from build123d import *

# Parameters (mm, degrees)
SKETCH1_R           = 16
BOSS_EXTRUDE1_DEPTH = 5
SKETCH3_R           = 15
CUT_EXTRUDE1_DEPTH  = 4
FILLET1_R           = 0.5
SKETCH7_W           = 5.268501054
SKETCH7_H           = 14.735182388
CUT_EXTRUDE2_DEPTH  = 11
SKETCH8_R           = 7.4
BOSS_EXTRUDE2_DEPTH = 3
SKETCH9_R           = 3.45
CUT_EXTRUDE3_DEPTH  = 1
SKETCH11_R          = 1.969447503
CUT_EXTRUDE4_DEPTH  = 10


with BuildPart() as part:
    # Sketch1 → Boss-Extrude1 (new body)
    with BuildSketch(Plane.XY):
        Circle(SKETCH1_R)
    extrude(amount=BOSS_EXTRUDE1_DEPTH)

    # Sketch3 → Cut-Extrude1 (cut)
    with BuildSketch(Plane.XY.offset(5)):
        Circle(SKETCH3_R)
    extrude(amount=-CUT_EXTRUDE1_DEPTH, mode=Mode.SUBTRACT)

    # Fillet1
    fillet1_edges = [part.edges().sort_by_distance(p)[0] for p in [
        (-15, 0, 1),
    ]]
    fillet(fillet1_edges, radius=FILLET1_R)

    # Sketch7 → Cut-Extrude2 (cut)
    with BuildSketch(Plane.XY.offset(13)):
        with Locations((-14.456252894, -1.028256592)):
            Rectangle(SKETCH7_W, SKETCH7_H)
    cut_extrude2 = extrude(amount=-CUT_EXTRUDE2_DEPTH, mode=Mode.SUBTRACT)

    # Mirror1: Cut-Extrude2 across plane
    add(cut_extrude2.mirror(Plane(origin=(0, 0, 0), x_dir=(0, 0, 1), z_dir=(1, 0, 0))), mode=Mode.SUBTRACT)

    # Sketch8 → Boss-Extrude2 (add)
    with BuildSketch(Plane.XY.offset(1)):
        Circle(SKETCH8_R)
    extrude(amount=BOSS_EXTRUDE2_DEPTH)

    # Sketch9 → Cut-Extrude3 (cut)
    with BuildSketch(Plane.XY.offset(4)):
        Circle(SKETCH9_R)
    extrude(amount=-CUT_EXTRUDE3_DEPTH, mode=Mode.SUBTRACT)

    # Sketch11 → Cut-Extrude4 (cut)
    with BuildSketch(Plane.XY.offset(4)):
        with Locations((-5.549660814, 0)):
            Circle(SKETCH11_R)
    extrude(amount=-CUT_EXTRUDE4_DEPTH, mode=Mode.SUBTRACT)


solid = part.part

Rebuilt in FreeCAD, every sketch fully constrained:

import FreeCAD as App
import Part
import Sketcher

V = App.Vector


def edges_at(feature, points):
    """Names of the edges that pass closest to the given points."""
    edges = feature.Shape.Edges
    near = lambda p: min(range(len(edges)), key=lambda i: edges[i].distToShape(Part.Vertex(*p))[0])
    return sorted({f"Edge{near(p) + 1}" for p in points})

doc = App.newDocument("Part")
body = doc.addObject("PartDesign::Body", "Body")

# Sketch on XY plane
sketch1 = body.newObject("Sketcher::SketchObject", "Sketch")
sketch1.AttachmentSupport = (doc.getObject("XY_Plane"), [""])
sketch1.MapMode = "FlatFace"
sketch1.addGeometry(Part.Circle(V(0, 0, 0), V(0, 0, 1), 16), False)
sketch1.addConstraint([
    Sketcher.Constraint("Coincident", 0, 3, -1, 1),
    Sketcher.Constraint("Diameter", 0, 32.0),
])
pad1 = body.newObject("PartDesign::Pad", "Pad")
pad1.Profile = sketch1
pad1.Length = 5

# Sketch on XY plane
sketch2 = body.newObject("Sketcher::SketchObject", "Sketch001")
sketch2.AttachmentSupport = (doc.getObject("XY_Plane"), [""])
sketch2.MapMode = "FlatFace"
sketch2.AttachmentOffset = App.Placement(V(0, 0, 5), App.Rotation())
sketch2.addGeometry(Part.Circle(V(0, 0, 0), V(0, 0, 1), 15), False)
sketch2.addConstraint([
    Sketcher.Constraint("Coincident", 0, 3, -1, 1),
    Sketcher.Constraint("Diameter", 0, 30.0),
])
pocket1 = body.newObject("PartDesign::Pocket", "Pocket")
pocket1.Profile = sketch2
pocket1.Length = 4
doc.recompute()

fillet = body.newObject("PartDesign::Fillet", "Fillet")
fillet.Base = (pocket1, edges_at(pocket1, [(-15, 0, 1)]))
fillet.Radius = 0.5

# Sketch on XY plane
sketch3 = body.newObject("Sketcher::SketchObject", "Sketch002")
sketch3.AttachmentSupport = (doc.getObject("XY_Plane"), [""])
sketch3.MapMode = "FlatFace"
sketch3.AttachmentOffset = App.Placement(V(0, 0, 13), App.Rotation())
sketch3.addGeometry([
    Part.LineSegment(V(-17, 6, 0), V(-17, -8, 0)),
    Part.LineSegment(V(-17, -8, 0), V(-12, -8, 0)),
    Part.LineSegment(V(-12, -8, 0), V(-12, 6, 0)),
    Part.LineSegment(V(-12, 6, 0), V(-17, 6, 0)),
], False)
sketch3.addConstraint([
    Sketcher.Constraint("Coincident", 0, 2, 1, 1),
    Sketcher.Constraint("Coincident", 1, 2, 2, 1),
    Sketcher.Constraint("Coincident", 2, 2, 3, 1),
    Sketcher.Constraint("Coincident", 3, 2, 0, 1),
    Sketcher.Constraint("Vertical", 0),
    Sketcher.Constraint("Horizontal", 1),
    Sketcher.Constraint("Vertical", 2),
    Sketcher.Constraint("Horizontal", 3),
    Sketcher.Constraint("DistanceX", 1, 1, 1, 2, 5.268501),
    Sketcher.Constraint("DistanceY", 0, 2, 0, 1, 14.735182),
    Sketcher.Constraint("DistanceX", 0, 2, -1, 1, 17.090503),
    Sketcher.Constraint("DistanceY", 0, 2, -1, 1, 8.395848),
])
pocket2 = body.newObject("PartDesign::Pocket", "Pocket001")
pocket2.Profile = sketch3
pocket2.Length = 11
doc.recompute()

mirrored = body.newObject("PartDesign::Mirrored", "Mirrored")
mirrored.Originals = [pocket2]
mirrored.MirrorPlane = (doc.getObject("YZ_Plane"), [""])
body.Tip = mirrored

# Sketch on XY plane
sketch4 = body.newObject("Sketcher::SketchObject", "Sketch003")
sketch4.AttachmentSupport = (doc.getObject("XY_Plane"), [""])
sketch4.MapMode = "FlatFace"
sketch4.AttachmentOffset = App.Placement(V(0, 0, 1), App.Rotation())
sketch4.addGeometry(Part.Circle(V(0, 0, 0), V(0, 0, 1), 7), False)
sketch4.addConstraint([
    Sketcher.Constraint("Coincident", 0, 3, -1, 1),
    Sketcher.Constraint("Diameter", 0, 14.8),
])
pad2 = body.newObject("PartDesign::Pad", "Pad001")
pad2.Profile = sketch4
pad2.Length = 3

# Sketch on XY plane
sketch5 = body.newObject("Sketcher::SketchObject", "Sketch004")
sketch5.AttachmentSupport = (doc.getObject("XY_Plane"), [""])
sketch5.MapMode = "FlatFace"
sketch5.AttachmentOffset = App.Placement(V(0, 0, 4), App.Rotation())
sketch5.addGeometry(Part.Circle(V(0, 0, 0), V(0, 0, 1), 3.5), False)
sketch5.addConstraint([
    Sketcher.Constraint("Coincident", 0, 3, -1, 1),
    Sketcher.Constraint("Diameter", 0, 6.9),
])
pocket3 = body.newObject("PartDesign::Pocket", "Pocket002")
pocket3.Profile = sketch5
pocket3.Length = 1

# Sketch on XY plane
sketch6 = body.newObject("Sketcher::SketchObject", "Sketch005")
sketch6.AttachmentSupport = (doc.getObject("XY_Plane"), [""])
sketch6.MapMode = "FlatFace"
sketch6.AttachmentOffset = App.Placement(V(0, 0, 4), App.Rotation())
sketch6.addGeometry(Part.Circle(V(-5.5, 0, 0), V(0, 0, 1), 2), False)
sketch6.addConstraint([
    Sketcher.Constraint("PointOnObject", 0, 3, -1),
    Sketcher.Constraint("Diameter", 0, 3.938895),
    Sketcher.Constraint("DistanceX", 0, 3, -1, 1, 5.549661),
])
pocket4 = body.newObject("PartDesign::Pocket", "Pocket003")
pocket4.Profile = sketch6
pocket4.Length = 10

doc.recompute()
